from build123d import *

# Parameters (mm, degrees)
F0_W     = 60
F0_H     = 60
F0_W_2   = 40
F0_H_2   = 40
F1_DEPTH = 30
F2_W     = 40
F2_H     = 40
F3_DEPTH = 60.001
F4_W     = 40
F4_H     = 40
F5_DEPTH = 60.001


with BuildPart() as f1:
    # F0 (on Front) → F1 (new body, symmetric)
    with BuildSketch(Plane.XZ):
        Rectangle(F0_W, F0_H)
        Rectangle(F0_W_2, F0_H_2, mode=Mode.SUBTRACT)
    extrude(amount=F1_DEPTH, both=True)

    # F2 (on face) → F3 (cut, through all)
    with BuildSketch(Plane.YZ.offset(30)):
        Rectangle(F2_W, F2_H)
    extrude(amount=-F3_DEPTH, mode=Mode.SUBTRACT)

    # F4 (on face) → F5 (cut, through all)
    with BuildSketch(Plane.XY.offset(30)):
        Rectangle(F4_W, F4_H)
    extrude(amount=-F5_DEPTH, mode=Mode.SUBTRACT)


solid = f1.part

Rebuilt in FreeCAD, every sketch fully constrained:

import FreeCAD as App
import Part
import Sketcher
from FreeCAD import Vector

doc = App.newDocument("Part")
body = doc.addObject("PartDesign::Body", "Body")

# Sketch on XZ plane
sketch1 = body.newObject("Sketcher::SketchObject", "Sketch")
sketch1.AttachmentSupport = (doc.getObject("XZ_Plane"), [""])
sketch1.MapMode = "FlatFace"
sketch1.addGeometry([
    Part.LineSegment(Vector(-30, 30, 0), Vector(-30, -30, 0)),  # 0
    Part.LineSegment(Vector(-30, -30, 0), Vector(30, -30, 0)),  # 1
    Part.LineSegment(Vector(30, -30, 0), Vector(30, 30, 0)),  # 2
    Part.LineSegment(Vector(30, 30, 0), Vector(-30, 30, 0)),  # 3
    Part.LineSegment(Vector(20, -20, 0), Vector(-20, -20, 0)),  # 4
    Part.LineSegment(Vector(-20, -20, 0), Vector(-20, 20, 0)),  # 5
    Part.LineSegment(Vector(-20, 20, 0), Vector(20, 20, 0)),  # 6
    Part.LineSegment(Vector(20, 20, 0), Vector(20, -20, 0)),  # 7
], False)
sketch1.addConstraint([
    Sketcher.Constraint("Coincident", 0, 2, 1, 1),
    Sketcher.Constraint("Coincident", 1, 2, 2, 1),
    Sketcher.Constraint("Coincident", 2, 2, 3, 1),
    Sketcher.Constraint("Coincident", 3, 2, 0, 1),
    Sketcher.Constraint("Coincident", 4, 2, 5, 1),
    Sketcher.Constraint("Coincident", 5, 2, 6, 1),
    Sketcher.Constraint("Coincident", 6, 2, 7, 1),
    Sketcher.Constraint("Coincident", 7, 2, 4, 1),
    Sketcher.Constraint("Vertical", 0),
    Sketcher.Constraint("Horizontal", 1),
    Sketcher.Constraint("Vertical", 2),
    Sketcher.Constraint("Horizontal", 3),
    Sketcher.Constraint("Horizontal", 4),
    Sketcher.Constraint("Vertical", 5),
    Sketcher.Constraint("Horizontal", 6),
    Sketcher.Constraint("Vertical", 7),
    Sketcher.Constraint("Symmetric", 0, 2, 2, 2, -1, 1),
    Sketcher.Constraint("Symmetric", 4, 2, 6, 2, -1, 1),
    Sketcher.Constraint("Equal", 3, 0),
    Sketcher.Constraint("Equal", 6, 5),
    Sketcher.Constraint("DistanceX", 1, 1, 1, 2, 60.0),
    Sketcher.Constraint("DistanceX", 4, 2, 4, 1, 40.0),
])
pad1 = body.newObject("PartDesign::Pad", "Pad")
pad1.Profile = sketch1
pad1.Length = 60
pad1.Midplane = True

# Sketch on YZ plane
sketch2 = body.newObject("Sketcher::SketchObject", "Sketch001")
sketch2.AttachmentSupport = (doc.getObject("YZ_Plane"), [""])
sketch2.MapMode = "FlatFace"
sketch2.AttachmentOffset = App.Placement(Vector(0, 0, 30), App.Rotation())
sketch2.addGeometry([
    Part.LineSegment(Vector(-20, 20, 0), Vector(-20, -20, 0)),
    Part.LineSegment(Vector(-20, -20, 0), Vector(20, -20, 0)),
    Part.LineSegment(Vector(20, -20, 0), Vector(20, 20, 0)),
    Part.LineSegment(Vector(20, 20, 0), Vector(-20, 20, 0)),
], False)
sketch2.addConstraint([
    Sketcher.Constraint("Coincident", 0, 2, 1, 1),
    Sketcher.Constraint("Coincident", 1, 2, 2, 1),
    Sketcher.Constraint("Coincident", 2, 2, 3, 1),
    Sketcher.Constraint("Coincident", 3, 2, 0, 1),
    Sketcher.Constraint("Vertical", 0),
    Sketcher.Constraint("Horizontal", 1),
    Sketcher.Constraint("Vertical", 2),
    Sketcher.Constraint("Horizontal", 3),
    Sketcher.Constraint("Symmetric", 0, 2, 2, 2, -1, 1),
    Sketcher.Constraint("Equal", 3, 0),
    Sketcher.Constraint("DistanceX", 1, 1, 1, 2, 40.0),
])
pocket1 = body.newObject("PartDesign::Pocket", "Pocket")
pocket1.Profile = sketch2
pocket1.Type = "ThroughAll"

# Sketch on XY plane
sketch3 = body.newObject("Sketcher::SketchObject", "Sketch002")
sketch3.AttachmentSupport = (doc.getObject("XY_Plane"), [""])
sketch3.MapMode = "FlatFace"
sketch3.AttachmentOffset = App.Placement(Vector(0, 0, 30), App.Rotation())
sketch3.addGeometry([
    Part.LineSegment(Vector(-20, 20, 0), Vector(-20, -20, 0)),
    Part.LineSegment(Vector(-20, -20, 0), Vector(20, -20, 0)),
    Part.LineSegment(Vector(20, -20, 0), Vector(20, 20, 0)),
    Part.LineSegment(Vector(20, 20, 0), Vector(-20, 20, 0)),
], False)
sketch3.addConstraint([
    Sketcher.Constraint("Coincident", 0, 2, 1, 1),
    Sketcher.Constraint("Coincident", 1, 2, 2, 1),
    Sketcher.Constraint("Coincident", 2, 2, 3, 1),
    Sketcher.Constraint("Coincident", 3, 2, 0, 1),
    Sketcher.Constraint("Vertical", 0),
    Sketcher.Constraint("Horizontal", 1),
    Sketcher.Constraint("Vertical", 2),
    Sketcher.Constraint("Horizontal", 3),
    Sketcher.Constraint("Symmetric", 0, 2, 2, 2, -1, 1),
    Sketcher.Constraint("Equal", 3, 0),
    Sketcher.Constraint("DistanceX", 1, 1, 1, 2, 40.0),
])
pocket2 = body.newObject("PartDesign::Pocket", "Pocket001")
pocket2.Profile = sketch3
pocket2.Type = "ThroughAll"

doc.recompute()
